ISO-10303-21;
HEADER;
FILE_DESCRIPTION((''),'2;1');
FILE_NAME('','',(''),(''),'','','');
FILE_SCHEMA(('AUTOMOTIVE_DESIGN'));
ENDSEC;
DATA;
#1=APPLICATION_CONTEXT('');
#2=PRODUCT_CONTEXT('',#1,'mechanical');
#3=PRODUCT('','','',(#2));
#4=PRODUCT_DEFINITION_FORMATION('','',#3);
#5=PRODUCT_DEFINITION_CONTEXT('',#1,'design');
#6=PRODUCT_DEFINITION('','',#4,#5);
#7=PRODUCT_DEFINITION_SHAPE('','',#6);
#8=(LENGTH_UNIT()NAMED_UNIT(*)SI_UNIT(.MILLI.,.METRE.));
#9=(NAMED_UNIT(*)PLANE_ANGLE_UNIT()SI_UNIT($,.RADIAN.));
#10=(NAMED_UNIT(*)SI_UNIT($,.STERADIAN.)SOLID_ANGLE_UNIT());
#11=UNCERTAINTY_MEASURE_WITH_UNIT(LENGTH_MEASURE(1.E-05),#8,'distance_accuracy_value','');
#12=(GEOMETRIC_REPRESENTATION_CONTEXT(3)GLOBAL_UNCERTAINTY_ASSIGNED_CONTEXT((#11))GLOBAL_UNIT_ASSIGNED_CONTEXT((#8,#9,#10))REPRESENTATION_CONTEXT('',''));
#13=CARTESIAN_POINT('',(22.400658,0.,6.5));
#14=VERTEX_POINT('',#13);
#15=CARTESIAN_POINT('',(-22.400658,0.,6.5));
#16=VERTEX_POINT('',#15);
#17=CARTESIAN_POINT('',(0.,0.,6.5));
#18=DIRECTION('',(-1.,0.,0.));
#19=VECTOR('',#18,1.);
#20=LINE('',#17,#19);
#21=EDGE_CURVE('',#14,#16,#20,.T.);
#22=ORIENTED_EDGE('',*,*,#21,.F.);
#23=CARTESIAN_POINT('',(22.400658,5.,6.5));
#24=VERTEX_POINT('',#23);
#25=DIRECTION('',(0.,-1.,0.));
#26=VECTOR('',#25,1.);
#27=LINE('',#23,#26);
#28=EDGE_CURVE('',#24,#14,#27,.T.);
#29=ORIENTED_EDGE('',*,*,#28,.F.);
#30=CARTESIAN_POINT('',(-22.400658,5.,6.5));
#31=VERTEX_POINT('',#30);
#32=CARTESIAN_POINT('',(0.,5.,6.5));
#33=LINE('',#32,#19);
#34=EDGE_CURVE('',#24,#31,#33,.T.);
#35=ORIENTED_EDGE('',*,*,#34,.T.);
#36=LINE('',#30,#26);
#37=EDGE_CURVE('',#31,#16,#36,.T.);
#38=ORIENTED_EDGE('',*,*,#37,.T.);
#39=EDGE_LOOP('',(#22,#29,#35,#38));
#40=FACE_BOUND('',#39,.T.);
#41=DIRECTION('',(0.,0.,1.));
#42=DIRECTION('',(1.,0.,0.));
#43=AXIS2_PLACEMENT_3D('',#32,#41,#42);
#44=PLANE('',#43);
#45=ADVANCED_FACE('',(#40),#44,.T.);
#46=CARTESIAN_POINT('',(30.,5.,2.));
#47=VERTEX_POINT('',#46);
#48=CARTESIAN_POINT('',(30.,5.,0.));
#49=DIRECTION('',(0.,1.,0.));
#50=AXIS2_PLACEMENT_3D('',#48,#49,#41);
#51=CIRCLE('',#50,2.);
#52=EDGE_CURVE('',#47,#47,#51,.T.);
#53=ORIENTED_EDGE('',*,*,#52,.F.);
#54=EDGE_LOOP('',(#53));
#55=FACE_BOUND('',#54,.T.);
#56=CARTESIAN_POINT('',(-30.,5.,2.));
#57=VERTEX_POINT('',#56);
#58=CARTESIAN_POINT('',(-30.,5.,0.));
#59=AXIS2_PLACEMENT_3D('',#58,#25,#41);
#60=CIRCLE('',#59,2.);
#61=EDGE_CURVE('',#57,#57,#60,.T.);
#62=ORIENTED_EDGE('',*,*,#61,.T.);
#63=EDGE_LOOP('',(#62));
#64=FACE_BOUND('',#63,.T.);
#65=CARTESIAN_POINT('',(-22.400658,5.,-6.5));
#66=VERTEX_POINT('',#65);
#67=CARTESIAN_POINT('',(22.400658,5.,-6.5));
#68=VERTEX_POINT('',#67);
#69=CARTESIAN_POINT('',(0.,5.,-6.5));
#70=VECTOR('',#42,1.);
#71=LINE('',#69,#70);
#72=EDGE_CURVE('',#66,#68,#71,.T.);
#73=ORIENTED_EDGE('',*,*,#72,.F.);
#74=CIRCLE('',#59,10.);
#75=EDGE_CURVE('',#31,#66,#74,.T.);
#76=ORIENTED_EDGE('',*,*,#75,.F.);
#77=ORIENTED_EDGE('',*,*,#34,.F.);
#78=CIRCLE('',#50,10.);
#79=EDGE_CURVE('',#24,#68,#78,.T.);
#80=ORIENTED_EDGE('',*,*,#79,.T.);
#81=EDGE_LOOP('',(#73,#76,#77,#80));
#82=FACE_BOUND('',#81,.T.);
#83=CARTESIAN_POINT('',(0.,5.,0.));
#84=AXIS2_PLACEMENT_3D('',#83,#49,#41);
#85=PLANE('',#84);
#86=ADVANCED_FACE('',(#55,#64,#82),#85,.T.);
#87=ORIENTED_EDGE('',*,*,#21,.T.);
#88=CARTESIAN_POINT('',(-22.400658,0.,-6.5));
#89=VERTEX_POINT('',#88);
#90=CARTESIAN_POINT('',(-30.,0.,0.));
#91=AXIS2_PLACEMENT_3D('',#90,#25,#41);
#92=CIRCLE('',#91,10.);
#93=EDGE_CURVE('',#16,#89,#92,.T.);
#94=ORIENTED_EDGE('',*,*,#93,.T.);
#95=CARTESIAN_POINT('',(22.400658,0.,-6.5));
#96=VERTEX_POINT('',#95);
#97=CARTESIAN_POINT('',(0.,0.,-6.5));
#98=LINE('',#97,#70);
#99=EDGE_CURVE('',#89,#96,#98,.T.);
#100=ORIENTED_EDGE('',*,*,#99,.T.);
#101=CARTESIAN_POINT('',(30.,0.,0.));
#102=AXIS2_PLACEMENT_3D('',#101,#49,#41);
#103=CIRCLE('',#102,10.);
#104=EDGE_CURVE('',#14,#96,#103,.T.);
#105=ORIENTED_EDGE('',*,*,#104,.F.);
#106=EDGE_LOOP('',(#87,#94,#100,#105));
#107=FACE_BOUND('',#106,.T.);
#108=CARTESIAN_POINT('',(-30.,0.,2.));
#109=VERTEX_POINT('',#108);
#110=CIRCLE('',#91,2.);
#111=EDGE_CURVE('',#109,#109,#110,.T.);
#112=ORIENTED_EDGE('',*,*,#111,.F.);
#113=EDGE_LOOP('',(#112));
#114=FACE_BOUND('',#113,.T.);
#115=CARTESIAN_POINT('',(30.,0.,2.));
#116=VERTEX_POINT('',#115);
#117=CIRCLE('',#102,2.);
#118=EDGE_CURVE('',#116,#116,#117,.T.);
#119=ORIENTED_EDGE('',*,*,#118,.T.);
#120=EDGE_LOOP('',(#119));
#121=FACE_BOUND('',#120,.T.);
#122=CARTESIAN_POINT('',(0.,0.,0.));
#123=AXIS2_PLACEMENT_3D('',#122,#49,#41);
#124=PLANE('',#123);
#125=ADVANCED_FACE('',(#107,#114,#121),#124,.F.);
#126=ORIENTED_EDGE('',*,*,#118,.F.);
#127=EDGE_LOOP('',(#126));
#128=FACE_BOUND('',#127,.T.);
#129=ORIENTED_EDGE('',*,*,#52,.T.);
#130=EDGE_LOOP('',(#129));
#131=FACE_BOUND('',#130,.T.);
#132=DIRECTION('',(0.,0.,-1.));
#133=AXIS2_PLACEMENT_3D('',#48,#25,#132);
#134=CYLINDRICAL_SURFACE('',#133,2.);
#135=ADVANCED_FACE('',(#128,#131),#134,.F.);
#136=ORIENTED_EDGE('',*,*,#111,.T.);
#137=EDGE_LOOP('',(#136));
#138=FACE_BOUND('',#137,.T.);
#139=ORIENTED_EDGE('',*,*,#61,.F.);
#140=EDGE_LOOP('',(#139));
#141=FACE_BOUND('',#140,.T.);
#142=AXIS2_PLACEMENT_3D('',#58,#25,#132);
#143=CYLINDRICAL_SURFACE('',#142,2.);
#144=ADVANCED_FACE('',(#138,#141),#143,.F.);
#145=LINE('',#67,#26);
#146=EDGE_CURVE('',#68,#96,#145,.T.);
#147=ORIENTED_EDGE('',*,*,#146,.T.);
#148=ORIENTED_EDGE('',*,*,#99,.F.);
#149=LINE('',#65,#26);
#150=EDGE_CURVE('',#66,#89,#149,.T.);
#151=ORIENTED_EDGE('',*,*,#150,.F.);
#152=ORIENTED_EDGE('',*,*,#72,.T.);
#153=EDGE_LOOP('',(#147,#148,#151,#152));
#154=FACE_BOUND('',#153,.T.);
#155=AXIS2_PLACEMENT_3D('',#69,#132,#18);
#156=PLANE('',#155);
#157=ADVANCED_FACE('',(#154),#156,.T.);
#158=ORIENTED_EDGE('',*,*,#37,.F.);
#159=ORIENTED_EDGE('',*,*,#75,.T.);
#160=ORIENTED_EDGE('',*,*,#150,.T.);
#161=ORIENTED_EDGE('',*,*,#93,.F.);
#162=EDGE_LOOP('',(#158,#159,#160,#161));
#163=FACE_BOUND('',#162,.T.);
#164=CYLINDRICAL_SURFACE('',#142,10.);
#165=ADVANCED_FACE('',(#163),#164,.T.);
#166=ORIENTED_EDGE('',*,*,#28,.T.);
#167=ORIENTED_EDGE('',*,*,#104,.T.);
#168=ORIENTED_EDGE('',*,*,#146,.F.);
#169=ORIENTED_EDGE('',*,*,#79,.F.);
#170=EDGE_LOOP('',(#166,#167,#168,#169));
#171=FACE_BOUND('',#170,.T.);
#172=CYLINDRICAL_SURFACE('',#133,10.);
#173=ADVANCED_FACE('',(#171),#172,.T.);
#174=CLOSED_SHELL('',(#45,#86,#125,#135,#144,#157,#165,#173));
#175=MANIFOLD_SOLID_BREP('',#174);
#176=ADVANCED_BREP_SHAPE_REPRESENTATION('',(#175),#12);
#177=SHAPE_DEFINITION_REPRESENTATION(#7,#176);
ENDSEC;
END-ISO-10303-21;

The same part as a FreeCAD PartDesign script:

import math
import FreeCAD as App
import Part
import Sketcher
from FreeCAD import Vector

doc = App.newDocument("Part")
body = doc.addObject("PartDesign::Body", "Body")

# Sketch on XZ plane
sketch1 = doc.addObject("Sketcher::SketchObject", "Sketch")
body.addObject(sketch1)
sketch1.AttachmentSupport = (doc.XZ_Plane, [""])
sketch1.MapMode = "FlatFace"
sketch1.addGeometry([
    Part.LineSegment(Vector(22.4, -6.5, 0), Vector(0, -6.5, 0)),  # 0
    Part.LineSegment(Vector(0, -6.5, 0), Vector(0, 6.5, 0)),  # 1
    Part.LineSegment(Vector(0, 6.5, 0), Vector(22.4, 6.5, 0)),  # 2
    Part.ArcOfCircle(Part.Circle(Vector(30, 0, 0), Vector(0, 0, 1), 10), math.radians(-139), math.radians(139)),  # 3
    Part.Circle(Vector(30, 0, 0), Vector(0, 0, 1), 2),  # 4
], False)
sketch1.addConstraint([
    Sketcher.Constraint("Coincident", 0, 2, 1, 1),
    Sketcher.Constraint("Coincident", 1, 2, 2, 1),
    Sketcher.Constraint("Coincident", 2, 2, 3, 2),
    Sketcher.Constraint("Coincident", 3, 1, 0, 1),
    Sketcher.Constraint("Horizontal", 0),
    Sketcher.Constraint("Vertical", 1),
    Sketcher.Constraint("Horizontal", 2),
    Sketcher.Constraint("Coincident", 4, 3, 3, 3),
    Sketcher.Constraint("Symmetric", 0, 2, 1, 2, -1, 1),
    Sketcher.Constraint("PointOnObject", 3, 3, -1),
    Sketcher.Constraint("Diameter", 4, 4.0),
    Sketcher.Constraint("Radius", 3, 10.0),
    Sketcher.Constraint("DistanceY", 1, 1, 1, 2, 13.0),
    Sketcher.Constraint("DistanceX", -1, 1, 3, 3, 30.0),
])
pad1 = doc.addObject("PartDesign::Pad", "Pad")
body.addObject(pad1)
pad1.Profile = sketch1
pad1.Length = 5
pad1.Reversed = True
doc.recompute()

mirrored = doc.addObject("PartDesign::Mirrored", "Mirrored")
body.addObject(mirrored)
mirrored.Originals = [pad1]
mirrored.MirrorPlane = (doc.YZ_Plane, [""])
body.Tip = mirrored

doc.recompute()
